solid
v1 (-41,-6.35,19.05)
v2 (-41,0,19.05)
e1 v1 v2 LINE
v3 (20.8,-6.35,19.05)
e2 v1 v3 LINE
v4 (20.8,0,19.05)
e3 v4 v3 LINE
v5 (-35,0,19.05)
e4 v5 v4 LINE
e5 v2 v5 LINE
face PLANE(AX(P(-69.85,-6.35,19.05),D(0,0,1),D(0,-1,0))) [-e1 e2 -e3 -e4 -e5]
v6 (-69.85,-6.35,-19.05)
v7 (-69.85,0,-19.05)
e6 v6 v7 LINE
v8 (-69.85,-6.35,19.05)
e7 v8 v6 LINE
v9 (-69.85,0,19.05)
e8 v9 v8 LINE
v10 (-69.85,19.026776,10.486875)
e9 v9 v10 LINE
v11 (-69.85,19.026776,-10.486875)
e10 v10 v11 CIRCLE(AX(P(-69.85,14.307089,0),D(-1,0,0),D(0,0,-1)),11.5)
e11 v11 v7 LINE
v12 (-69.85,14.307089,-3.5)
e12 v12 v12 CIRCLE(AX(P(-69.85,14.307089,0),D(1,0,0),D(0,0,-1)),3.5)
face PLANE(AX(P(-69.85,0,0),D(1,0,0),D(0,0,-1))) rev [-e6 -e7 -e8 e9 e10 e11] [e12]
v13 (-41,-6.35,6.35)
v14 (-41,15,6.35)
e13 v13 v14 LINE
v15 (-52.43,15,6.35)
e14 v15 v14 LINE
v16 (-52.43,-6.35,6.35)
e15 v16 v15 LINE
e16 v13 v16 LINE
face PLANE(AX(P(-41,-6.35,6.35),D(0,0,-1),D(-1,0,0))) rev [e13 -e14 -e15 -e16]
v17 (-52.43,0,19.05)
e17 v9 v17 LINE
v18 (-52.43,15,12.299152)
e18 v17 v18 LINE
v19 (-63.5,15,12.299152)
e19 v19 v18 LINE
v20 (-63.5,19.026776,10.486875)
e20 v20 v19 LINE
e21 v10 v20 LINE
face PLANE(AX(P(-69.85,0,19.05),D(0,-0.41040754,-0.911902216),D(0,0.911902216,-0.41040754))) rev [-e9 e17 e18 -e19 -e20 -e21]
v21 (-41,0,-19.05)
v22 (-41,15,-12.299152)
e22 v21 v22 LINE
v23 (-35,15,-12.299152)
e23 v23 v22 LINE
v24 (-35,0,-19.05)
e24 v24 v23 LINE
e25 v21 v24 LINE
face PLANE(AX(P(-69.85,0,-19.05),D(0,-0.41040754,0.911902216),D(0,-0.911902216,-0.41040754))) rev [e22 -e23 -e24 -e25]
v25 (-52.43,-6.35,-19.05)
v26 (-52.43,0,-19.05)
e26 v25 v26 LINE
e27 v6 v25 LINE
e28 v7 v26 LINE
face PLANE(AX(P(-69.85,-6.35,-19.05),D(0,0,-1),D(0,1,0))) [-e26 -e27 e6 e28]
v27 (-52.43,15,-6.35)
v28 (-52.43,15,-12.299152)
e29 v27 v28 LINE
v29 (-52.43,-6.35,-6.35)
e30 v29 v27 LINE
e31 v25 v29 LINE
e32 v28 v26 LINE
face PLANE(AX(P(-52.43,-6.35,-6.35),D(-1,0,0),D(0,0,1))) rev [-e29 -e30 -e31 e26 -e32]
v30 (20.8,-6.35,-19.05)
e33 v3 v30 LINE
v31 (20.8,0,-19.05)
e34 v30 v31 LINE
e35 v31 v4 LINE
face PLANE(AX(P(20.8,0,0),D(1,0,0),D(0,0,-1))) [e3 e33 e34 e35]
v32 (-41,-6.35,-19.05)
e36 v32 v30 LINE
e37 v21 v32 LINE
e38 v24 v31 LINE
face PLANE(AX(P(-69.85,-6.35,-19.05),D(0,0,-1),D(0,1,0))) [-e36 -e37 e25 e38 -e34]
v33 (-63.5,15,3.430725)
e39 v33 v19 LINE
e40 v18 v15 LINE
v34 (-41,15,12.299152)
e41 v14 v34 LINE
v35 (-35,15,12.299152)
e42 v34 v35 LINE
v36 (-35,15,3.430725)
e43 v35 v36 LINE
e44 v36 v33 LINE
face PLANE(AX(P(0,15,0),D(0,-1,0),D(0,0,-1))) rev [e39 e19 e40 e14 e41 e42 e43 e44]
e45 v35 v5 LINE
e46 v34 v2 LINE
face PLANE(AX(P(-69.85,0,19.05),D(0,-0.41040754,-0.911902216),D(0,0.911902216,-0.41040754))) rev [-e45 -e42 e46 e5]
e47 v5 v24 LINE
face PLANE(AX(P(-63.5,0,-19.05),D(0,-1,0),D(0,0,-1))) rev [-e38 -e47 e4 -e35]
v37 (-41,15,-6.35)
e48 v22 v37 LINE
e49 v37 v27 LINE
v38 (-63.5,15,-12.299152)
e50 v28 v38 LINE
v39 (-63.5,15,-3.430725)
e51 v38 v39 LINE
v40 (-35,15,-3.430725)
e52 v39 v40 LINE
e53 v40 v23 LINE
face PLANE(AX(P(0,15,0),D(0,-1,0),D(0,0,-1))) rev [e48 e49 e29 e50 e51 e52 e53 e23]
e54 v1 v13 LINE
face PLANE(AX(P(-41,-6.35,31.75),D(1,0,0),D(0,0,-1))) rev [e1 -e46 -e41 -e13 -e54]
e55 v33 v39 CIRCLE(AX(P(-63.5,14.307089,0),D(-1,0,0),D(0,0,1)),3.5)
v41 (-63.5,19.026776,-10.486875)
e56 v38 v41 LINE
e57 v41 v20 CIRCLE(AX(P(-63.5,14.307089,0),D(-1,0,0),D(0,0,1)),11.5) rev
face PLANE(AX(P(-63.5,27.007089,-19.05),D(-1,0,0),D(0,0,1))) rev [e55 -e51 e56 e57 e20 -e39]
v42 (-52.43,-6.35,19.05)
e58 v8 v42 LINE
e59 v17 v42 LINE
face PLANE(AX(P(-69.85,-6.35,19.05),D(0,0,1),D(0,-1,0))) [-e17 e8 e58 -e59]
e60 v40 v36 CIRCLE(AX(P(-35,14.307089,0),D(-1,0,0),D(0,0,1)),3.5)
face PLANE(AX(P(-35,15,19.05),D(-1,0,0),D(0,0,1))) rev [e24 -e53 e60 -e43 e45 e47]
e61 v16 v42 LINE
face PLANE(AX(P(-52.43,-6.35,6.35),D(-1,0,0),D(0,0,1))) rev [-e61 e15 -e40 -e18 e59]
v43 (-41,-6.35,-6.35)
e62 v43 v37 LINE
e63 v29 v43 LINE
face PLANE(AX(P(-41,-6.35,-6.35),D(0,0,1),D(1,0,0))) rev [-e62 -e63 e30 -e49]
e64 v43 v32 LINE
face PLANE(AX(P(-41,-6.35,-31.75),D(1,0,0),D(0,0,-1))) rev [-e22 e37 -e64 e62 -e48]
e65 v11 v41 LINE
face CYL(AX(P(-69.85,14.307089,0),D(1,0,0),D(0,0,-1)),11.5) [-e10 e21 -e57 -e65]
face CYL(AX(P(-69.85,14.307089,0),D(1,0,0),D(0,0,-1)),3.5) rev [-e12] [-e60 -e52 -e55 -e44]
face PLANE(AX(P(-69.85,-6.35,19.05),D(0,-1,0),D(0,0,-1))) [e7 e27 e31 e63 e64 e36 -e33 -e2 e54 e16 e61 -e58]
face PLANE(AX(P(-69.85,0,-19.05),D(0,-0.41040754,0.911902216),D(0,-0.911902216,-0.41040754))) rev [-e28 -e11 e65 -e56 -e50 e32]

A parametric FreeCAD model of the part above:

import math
import FreeCAD as App
import Part
import Sketcher
Q = App.Units.Quantity


def add_polygon(sketch, points):
    """Adds a closed chain of lines whose ends are joined by coincident constraints."""
    first, n = sketch.GeometryCount, len(points)
    for a, b in zip(points, points[1:] + points[:1]):
        sketch.addGeometry(Part.LineSegment(App.Vector(*a, 0), App.Vector(*b, 0)), False)
    for i in range(n):
        sketch.addConstraint(Sketcher.Constraint("Coincident", first + i, 2, first + (i + 1) % n, 1))

doc = App.newDocument("Part")
params = doc.addObject("Spreadsheet::Sheet", "Params")
for row, (alias, value) in enumerate([
    ("sketch1_height", "38.1 mm"),
    ("pad1_length", "20.8 mm"),
    ("pad1_length2", "69.85 mm"),
    ("sketch2_width", "84.3 mm"),
    ("sketch3_diameter", "7 mm"),
    ("sketch4_radius", "11.5 mm"),
    ("sketch4_height", "38.1 mm"),
    ("sketch5_width", "28.5 mm"),
    ("sketch5_height", "38.1 mm"),
    ("pad2_length", "15 mm"),
    ("sketch6_height", "19.05 mm"),
    ("sketch7_diameter", "7 mm"),
    ("sketch8_height", "25.4 mm"),
    ("sketch8_width", "11.43 mm"),
], start=1):
    params.set(f"A{row}", alias)
    params.set(f"B{row}", "=" + value)
    params.setAlias(f"B{row}", alias)

body = doc.addObject("PartDesign::Body", "Body")

# Sketch on YZ plane
sketch1 = body.newObject("Sketcher::SketchObject", "Sketch")
sketch1.AttachmentSupport = (doc.getObject("YZ_Plane"), [""])
sketch1.MapMode = "FlatFace"
add_polygon(sketch1, [(27, -19), (27, 19), (-6, 19), (-6, -19)])  # lines 0-3
sketch1.addConstraint([
    Sketcher.Constraint("Vertical", 0),
    Sketcher.Constraint("Horizontal", 1),
    Sketcher.Constraint("Vertical", 2),
    Sketcher.Constraint("Horizontal", 3),
    Sketcher.Constraint("DistanceY", 0, 1, 0, 2, Q("38.1 mm")),
    Sketcher.Constraint("DistanceY", -1, 1, 0, 2, Q("19.05 mm")),
    Sketcher.Constraint("DistanceX", 1, 2, -1, 1, Q("6.35 mm")),
    Sketcher.Constraint("DistanceX", 1, 2, 1, 1, Q("33.357089 mm")),
])
sketch1.setExpression("Constraints[8]", "Params.sketch1_height")
pad1 = body.newObject("PartDesign::Pad", "Pad")
pad1.Profile = sketch1
pad1.Type = "TwoLengths"
pad1.setExpression("Length", "Params.pad1_length")
pad1.setExpression("Length2", "Params.pad1_length2")

# Sketch on XY plane
sketch2 = body.newObject("Sketcher::SketchObject", "Sketch001")
sketch2.AttachmentSupport = (doc.getObject("XY_Plane"), [""])
sketch2.MapMode = "FlatFace"
sketch2.AttachmentOffset = App.Placement(App.Vector(0, 0, 19.05), App.Rotation())
add_polygon(sketch2, [(-64, 27), (-64, 0), (21, 0), (21, 27)])  # lines 0-3
sketch2.addConstraint([
    Sketcher.Constraint("Vertical", 0),
    Sketcher.Constraint("Horizontal", 1),
    Sketcher.Constraint("Vertical", 2),
    Sketcher.Constraint("Horizontal", 3),
    Sketcher.Constraint("PointOnObject", 0, 2, -1),
    Sketcher.Constraint("DistanceX", 1, 1, 1, 2, Q("84.3 mm")),
    Sketcher.Constraint("DistanceX", 0, 2, -1, 1, Q("63.5 mm")),
    Sketcher.Constraint("DistanceY", 0, 2, 0, 1, Q("27.007089 mm")),
])
sketch2.setExpression("Constraints[9]", "Params.sketch2_width")
pocket1 = body.newObject("PartDesign::Pocket", "Pocket")
pocket1.Profile = sketch2
pocket1.Type = "ThroughAll"

# Sketch on YZ plane
sketch3 = body.newObject("Sketcher::SketchObject", "Sketch002")
sketch3.AttachmentSupport = (doc.getObject("YZ_Plane"), [""])
sketch3.MapMode = "FlatFace"
sketch3.addGeometry(Part.Circle(App.Vector(14.3, 0, 0), App.Vector(0, 0, 1), 3.5), False)
sketch3.addConstraint([
    Sketcher.Constraint("PointOnObject", 0, 3, -1),
    Sketcher.Constraint("Diameter", 0, Q("7 mm")),
    Sketcher.Constraint("DistanceX", -1, 1, 0, 3, Q("14.307089 mm")),
])
sketch3.setExpression("Constraints[1]", "Params.sketch3_diameter")
pocket2 = body.newObject("PartDesign::Pocket", "Pocket001")
pocket2.Profile = sketch3
pocket2.Type = "ThroughAll"
pocket2.Midplane = True

# Sketch on YZ plane
sketch4 = body.newObject("Sketcher::SketchObject", "Sketch003")
sketch4.AttachmentSupport = (doc.getObject("YZ_Plane"), [""])
sketch4.MapMode = "FlatFace"
sketch4.addGeometry([
    Part.LineSegment(App.Vector(19, -10, 0), App.Vector(0, -19, 0)),  # 0
    Part.LineSegment(App.Vector(0, -19, 0), App.Vector(27, -19, 0)),  # 1
    Part.LineSegment(App.Vector(27, -19, 0), App.Vector(27, 19, 0)),  # 2
    Part.LineSegment(App.Vector(27, 19, 0), App.Vector(0, 19, 0)),  # 3
    Part.LineSegment(App.Vector(0, 19, 0), App.Vector(19, 10, 0)),  # 4
    Part.ArcOfCircle(Part.Circle(App.Vector(14, 0, 0), App.Vector(0, 0, 1), 12), math.radians(-66), math.radians(66)),  # 5
], False)
sketch4.addConstraint([
    Sketcher.Constraint("Coincident", 0, 2, 1, 1),
    Sketcher.Constraint("Coincident", 1, 2, 2, 1),
    Sketcher.Constraint("Coincident", 2, 2, 3, 1),
    Sketcher.Constraint("Coincident", 3, 2, 4, 1),
    Sketcher.Constraint("Tangent", 4, 2, 5, 2),
    Sketcher.Constraint("Tangent", 5, 1, 0, 1),
    Sketcher.Constraint("Horizontal", 1),
    Sketcher.Constraint("Vertical", 2),
    Sketcher.Constraint("Horizontal", 3),
    Sketcher.Constraint("Symmetric", 0, 2, 3, 2, -1, 1),
    Sketcher.Constraint("Symmetric", 4, 2, 5, 1, -1),
    Sketcher.Constraint("Radius", 5, Q("11.5 mm")),
    Sketcher.Constraint("DistanceY", 2, 1, 2, 2, Q("38.1 mm")),
    Sketcher.Constraint("DistanceX", 5, 3, 1, 2, Q("12.7 mm")),
    Sketcher.Constraint("DistanceX", 1, 1, 1, 2, Q("27.007089 mm")),
])
sketch4.setExpression("Constraints[11]", "Params.sketch4_radius")
sketch4.setExpression("Constraints[12]", "Params.sketch4_height")
pocket3 = body.newObject("PartDesign::Pocket", "Pocket002")
pocket3.Profile = sketch4
pocket3.Type = "ThroughAll"

# Sketch on XZ plane
sketch5 = body.newObject("Sketcher::SketchObject", "Sketch004")
sketch5.AttachmentSupport = (doc.getObject("XZ_Plane"), [""])
sketch5.MapMode = "FlatFace"
add_polygon(sketch5, [(-64, -19), (-64, 19), (-35, 19), (-35, -19)])  # lines 0-3
sketch5.addConstraint([
    Sketcher.Constraint("Vertical", 0),
    Sketcher.Constraint("Horizontal", 1),
    Sketcher.Constraint("Vertical", 2),
    Sketcher.Constraint("Horizontal", 3),
    Sketcher.Constraint("DistanceX", 1, 1, 1, 2, Q("28.5 mm")),
    Sketcher.Constraint("DistanceY", 0, 1, 0, 2, Q("38.1 mm")),
    Sketcher.Constraint("DistanceX", 1, 2, -1, 1, Q("35 mm")),
    Sketcher.Constraint("DistanceY", -1, 1, 0, 2, Q("19.05 mm")),
])
sketch5.setExpression("Constraints[8]", "Params.sketch5_width")
sketch5.setExpression("Constraints[9]", "Params.sketch5_height")
pad2 = body.newObject("PartDesign::Pad", "Pad001")
pad2.Profile = sketch5
pad2.setExpression("Length", "Params.pad2_length")
pad2.Reversed = True

# Sketch on YZ plane
sketch6 = body.newObject("Sketcher::SketchObject", "Sketch005")
sketch6.AttachmentSupport = (doc.getObject("YZ_Plane"), [""])
sketch6.MapMode = "FlatFace"
add_polygon(sketch6, [(0, -19), (42, -19), (42, 0)])  # lines 0-2
add_polygon(sketch6, [(42, 0), (42, 19), (0, 19)])  # lines 3-5
sketch6.addConstraint([
    Sketcher.Constraint("Horizontal", 0),
    Sketcher.Constraint("Vertical", 1),
    Sketcher.Constraint("Vertical", 3),
    Sketcher.Constraint("Horizontal", 4),
    Sketcher.Constraint("Coincident", 5, 2, 1, 2),
    Sketcher.Constraint("Symmetric", 2, 2, 4, 2, -1, 1),
    Sketcher.Constraint("PointOnObject", 1, 2, -1),
    Sketcher.Constraint("PointOnObject", 2, 2, -2),
    Sketcher.Constraint("DistanceY", 1, 1, 1, 2, Q("19.05 mm")),
    Sketcher.Constraint("DistanceX", 0, 1, 0, 2, Q("42.328017 mm")),
])
sketch6.setExpression("Constraints[14]", "Params.sketch6_height")
pocket4 = body.newObject("PartDesign::Pocket", "Pocket003")
pocket4.Profile = sketch6
pocket4.Type = "ThroughAll"

# Sketch on YZ plane
sketch7 = body.newObject("Sketcher::SketchObject", "Sketch006")
sketch7.AttachmentSupport = (doc.getObject("YZ_Plane"), [""])
sketch7.MapMode = "FlatFace"
sketch7.addGeometry(Part.Circle(App.Vector(14.3, 0, 0), App.Vector(0, 0, 1), 3.5), False)
sketch7.addConstraint([
    Sketcher.Constraint("PointOnObject", 0, 3, -1),
    Sketcher.Constraint("Diameter", 0, Q("7 mm")),
    Sketcher.Constraint("DistanceX", -1, 1, 0, 3, Q("14.307089 mm")),
])
sketch7.setExpression("Constraints[1]", "Params.sketch7_diameter")
pocket5 = body.newObject("PartDesign::Pocket", "Pocket004")
pocket5.Profile = sketch7
pocket5.Type = "ThroughAll"

# Sketch on XZ plane
sketch8 = body.newObject("Sketcher::SketchObject", "Sketch007")
sketch8.AttachmentSupport = (doc.getObject("XZ_Plane"), [""])
sketch8.MapMode = "FlatFace"
add_polygon(sketch8, [(-52, 6), (-52, 32), (-41, 32), (-41, 6)])  # lines 0-3
add_polygon(sketch8, [(-52, -32), (-52, -6), (-41, -6), (-41, -32)])  # lines 4-7
sketch8.addConstraint([
    Sketcher.Constraint("Vertical", 0),
    Sketcher.Constraint("Horizontal", 1),
    Sketcher.Constraint("Vertical", 2),
    Sketcher.Constraint("Horizontal", 3),
    Sketcher.Constraint("Vertical", 4),
    Sketcher.Constraint("Horizontal", 5),
    Sketcher.Constraint("Vertical", 6),
    Sketcher.Constraint("Horizontal", 7),
    Sketcher.Constraint("Symmetric", 3, 2, 4, 2, -1),
    Sketcher.Constraint("Symmetric", 1, 2, 6, 2, -1),
    Sketcher.Constraint("DistanceY", 0, 1, 0, 2, Q("25.4 mm")),
    Sketcher.Constraint("DistanceX", 1, 2, -1, 1, Q("41 mm")),
    Sketcher.Constraint("DistanceX", 1, 1, 1, 2, Q("11.43 mm")),
    Sketcher.Constraint("DistanceY", 4, 2, 3, 2, Q("12.7 mm")),
])
sketch8.setExpression("Constraints[18]", "Params.sketch8_height")
sketch8.setExpression("Constraints[20]", "Params.sketch8_width")
pocket6 = body.newObject("PartDesign::Pocket", "Pocket005")
pocket6.Profile = sketch8
pocket6.Type = "ThroughAll"
pocket6.Midplane = True

doc.recompute()
